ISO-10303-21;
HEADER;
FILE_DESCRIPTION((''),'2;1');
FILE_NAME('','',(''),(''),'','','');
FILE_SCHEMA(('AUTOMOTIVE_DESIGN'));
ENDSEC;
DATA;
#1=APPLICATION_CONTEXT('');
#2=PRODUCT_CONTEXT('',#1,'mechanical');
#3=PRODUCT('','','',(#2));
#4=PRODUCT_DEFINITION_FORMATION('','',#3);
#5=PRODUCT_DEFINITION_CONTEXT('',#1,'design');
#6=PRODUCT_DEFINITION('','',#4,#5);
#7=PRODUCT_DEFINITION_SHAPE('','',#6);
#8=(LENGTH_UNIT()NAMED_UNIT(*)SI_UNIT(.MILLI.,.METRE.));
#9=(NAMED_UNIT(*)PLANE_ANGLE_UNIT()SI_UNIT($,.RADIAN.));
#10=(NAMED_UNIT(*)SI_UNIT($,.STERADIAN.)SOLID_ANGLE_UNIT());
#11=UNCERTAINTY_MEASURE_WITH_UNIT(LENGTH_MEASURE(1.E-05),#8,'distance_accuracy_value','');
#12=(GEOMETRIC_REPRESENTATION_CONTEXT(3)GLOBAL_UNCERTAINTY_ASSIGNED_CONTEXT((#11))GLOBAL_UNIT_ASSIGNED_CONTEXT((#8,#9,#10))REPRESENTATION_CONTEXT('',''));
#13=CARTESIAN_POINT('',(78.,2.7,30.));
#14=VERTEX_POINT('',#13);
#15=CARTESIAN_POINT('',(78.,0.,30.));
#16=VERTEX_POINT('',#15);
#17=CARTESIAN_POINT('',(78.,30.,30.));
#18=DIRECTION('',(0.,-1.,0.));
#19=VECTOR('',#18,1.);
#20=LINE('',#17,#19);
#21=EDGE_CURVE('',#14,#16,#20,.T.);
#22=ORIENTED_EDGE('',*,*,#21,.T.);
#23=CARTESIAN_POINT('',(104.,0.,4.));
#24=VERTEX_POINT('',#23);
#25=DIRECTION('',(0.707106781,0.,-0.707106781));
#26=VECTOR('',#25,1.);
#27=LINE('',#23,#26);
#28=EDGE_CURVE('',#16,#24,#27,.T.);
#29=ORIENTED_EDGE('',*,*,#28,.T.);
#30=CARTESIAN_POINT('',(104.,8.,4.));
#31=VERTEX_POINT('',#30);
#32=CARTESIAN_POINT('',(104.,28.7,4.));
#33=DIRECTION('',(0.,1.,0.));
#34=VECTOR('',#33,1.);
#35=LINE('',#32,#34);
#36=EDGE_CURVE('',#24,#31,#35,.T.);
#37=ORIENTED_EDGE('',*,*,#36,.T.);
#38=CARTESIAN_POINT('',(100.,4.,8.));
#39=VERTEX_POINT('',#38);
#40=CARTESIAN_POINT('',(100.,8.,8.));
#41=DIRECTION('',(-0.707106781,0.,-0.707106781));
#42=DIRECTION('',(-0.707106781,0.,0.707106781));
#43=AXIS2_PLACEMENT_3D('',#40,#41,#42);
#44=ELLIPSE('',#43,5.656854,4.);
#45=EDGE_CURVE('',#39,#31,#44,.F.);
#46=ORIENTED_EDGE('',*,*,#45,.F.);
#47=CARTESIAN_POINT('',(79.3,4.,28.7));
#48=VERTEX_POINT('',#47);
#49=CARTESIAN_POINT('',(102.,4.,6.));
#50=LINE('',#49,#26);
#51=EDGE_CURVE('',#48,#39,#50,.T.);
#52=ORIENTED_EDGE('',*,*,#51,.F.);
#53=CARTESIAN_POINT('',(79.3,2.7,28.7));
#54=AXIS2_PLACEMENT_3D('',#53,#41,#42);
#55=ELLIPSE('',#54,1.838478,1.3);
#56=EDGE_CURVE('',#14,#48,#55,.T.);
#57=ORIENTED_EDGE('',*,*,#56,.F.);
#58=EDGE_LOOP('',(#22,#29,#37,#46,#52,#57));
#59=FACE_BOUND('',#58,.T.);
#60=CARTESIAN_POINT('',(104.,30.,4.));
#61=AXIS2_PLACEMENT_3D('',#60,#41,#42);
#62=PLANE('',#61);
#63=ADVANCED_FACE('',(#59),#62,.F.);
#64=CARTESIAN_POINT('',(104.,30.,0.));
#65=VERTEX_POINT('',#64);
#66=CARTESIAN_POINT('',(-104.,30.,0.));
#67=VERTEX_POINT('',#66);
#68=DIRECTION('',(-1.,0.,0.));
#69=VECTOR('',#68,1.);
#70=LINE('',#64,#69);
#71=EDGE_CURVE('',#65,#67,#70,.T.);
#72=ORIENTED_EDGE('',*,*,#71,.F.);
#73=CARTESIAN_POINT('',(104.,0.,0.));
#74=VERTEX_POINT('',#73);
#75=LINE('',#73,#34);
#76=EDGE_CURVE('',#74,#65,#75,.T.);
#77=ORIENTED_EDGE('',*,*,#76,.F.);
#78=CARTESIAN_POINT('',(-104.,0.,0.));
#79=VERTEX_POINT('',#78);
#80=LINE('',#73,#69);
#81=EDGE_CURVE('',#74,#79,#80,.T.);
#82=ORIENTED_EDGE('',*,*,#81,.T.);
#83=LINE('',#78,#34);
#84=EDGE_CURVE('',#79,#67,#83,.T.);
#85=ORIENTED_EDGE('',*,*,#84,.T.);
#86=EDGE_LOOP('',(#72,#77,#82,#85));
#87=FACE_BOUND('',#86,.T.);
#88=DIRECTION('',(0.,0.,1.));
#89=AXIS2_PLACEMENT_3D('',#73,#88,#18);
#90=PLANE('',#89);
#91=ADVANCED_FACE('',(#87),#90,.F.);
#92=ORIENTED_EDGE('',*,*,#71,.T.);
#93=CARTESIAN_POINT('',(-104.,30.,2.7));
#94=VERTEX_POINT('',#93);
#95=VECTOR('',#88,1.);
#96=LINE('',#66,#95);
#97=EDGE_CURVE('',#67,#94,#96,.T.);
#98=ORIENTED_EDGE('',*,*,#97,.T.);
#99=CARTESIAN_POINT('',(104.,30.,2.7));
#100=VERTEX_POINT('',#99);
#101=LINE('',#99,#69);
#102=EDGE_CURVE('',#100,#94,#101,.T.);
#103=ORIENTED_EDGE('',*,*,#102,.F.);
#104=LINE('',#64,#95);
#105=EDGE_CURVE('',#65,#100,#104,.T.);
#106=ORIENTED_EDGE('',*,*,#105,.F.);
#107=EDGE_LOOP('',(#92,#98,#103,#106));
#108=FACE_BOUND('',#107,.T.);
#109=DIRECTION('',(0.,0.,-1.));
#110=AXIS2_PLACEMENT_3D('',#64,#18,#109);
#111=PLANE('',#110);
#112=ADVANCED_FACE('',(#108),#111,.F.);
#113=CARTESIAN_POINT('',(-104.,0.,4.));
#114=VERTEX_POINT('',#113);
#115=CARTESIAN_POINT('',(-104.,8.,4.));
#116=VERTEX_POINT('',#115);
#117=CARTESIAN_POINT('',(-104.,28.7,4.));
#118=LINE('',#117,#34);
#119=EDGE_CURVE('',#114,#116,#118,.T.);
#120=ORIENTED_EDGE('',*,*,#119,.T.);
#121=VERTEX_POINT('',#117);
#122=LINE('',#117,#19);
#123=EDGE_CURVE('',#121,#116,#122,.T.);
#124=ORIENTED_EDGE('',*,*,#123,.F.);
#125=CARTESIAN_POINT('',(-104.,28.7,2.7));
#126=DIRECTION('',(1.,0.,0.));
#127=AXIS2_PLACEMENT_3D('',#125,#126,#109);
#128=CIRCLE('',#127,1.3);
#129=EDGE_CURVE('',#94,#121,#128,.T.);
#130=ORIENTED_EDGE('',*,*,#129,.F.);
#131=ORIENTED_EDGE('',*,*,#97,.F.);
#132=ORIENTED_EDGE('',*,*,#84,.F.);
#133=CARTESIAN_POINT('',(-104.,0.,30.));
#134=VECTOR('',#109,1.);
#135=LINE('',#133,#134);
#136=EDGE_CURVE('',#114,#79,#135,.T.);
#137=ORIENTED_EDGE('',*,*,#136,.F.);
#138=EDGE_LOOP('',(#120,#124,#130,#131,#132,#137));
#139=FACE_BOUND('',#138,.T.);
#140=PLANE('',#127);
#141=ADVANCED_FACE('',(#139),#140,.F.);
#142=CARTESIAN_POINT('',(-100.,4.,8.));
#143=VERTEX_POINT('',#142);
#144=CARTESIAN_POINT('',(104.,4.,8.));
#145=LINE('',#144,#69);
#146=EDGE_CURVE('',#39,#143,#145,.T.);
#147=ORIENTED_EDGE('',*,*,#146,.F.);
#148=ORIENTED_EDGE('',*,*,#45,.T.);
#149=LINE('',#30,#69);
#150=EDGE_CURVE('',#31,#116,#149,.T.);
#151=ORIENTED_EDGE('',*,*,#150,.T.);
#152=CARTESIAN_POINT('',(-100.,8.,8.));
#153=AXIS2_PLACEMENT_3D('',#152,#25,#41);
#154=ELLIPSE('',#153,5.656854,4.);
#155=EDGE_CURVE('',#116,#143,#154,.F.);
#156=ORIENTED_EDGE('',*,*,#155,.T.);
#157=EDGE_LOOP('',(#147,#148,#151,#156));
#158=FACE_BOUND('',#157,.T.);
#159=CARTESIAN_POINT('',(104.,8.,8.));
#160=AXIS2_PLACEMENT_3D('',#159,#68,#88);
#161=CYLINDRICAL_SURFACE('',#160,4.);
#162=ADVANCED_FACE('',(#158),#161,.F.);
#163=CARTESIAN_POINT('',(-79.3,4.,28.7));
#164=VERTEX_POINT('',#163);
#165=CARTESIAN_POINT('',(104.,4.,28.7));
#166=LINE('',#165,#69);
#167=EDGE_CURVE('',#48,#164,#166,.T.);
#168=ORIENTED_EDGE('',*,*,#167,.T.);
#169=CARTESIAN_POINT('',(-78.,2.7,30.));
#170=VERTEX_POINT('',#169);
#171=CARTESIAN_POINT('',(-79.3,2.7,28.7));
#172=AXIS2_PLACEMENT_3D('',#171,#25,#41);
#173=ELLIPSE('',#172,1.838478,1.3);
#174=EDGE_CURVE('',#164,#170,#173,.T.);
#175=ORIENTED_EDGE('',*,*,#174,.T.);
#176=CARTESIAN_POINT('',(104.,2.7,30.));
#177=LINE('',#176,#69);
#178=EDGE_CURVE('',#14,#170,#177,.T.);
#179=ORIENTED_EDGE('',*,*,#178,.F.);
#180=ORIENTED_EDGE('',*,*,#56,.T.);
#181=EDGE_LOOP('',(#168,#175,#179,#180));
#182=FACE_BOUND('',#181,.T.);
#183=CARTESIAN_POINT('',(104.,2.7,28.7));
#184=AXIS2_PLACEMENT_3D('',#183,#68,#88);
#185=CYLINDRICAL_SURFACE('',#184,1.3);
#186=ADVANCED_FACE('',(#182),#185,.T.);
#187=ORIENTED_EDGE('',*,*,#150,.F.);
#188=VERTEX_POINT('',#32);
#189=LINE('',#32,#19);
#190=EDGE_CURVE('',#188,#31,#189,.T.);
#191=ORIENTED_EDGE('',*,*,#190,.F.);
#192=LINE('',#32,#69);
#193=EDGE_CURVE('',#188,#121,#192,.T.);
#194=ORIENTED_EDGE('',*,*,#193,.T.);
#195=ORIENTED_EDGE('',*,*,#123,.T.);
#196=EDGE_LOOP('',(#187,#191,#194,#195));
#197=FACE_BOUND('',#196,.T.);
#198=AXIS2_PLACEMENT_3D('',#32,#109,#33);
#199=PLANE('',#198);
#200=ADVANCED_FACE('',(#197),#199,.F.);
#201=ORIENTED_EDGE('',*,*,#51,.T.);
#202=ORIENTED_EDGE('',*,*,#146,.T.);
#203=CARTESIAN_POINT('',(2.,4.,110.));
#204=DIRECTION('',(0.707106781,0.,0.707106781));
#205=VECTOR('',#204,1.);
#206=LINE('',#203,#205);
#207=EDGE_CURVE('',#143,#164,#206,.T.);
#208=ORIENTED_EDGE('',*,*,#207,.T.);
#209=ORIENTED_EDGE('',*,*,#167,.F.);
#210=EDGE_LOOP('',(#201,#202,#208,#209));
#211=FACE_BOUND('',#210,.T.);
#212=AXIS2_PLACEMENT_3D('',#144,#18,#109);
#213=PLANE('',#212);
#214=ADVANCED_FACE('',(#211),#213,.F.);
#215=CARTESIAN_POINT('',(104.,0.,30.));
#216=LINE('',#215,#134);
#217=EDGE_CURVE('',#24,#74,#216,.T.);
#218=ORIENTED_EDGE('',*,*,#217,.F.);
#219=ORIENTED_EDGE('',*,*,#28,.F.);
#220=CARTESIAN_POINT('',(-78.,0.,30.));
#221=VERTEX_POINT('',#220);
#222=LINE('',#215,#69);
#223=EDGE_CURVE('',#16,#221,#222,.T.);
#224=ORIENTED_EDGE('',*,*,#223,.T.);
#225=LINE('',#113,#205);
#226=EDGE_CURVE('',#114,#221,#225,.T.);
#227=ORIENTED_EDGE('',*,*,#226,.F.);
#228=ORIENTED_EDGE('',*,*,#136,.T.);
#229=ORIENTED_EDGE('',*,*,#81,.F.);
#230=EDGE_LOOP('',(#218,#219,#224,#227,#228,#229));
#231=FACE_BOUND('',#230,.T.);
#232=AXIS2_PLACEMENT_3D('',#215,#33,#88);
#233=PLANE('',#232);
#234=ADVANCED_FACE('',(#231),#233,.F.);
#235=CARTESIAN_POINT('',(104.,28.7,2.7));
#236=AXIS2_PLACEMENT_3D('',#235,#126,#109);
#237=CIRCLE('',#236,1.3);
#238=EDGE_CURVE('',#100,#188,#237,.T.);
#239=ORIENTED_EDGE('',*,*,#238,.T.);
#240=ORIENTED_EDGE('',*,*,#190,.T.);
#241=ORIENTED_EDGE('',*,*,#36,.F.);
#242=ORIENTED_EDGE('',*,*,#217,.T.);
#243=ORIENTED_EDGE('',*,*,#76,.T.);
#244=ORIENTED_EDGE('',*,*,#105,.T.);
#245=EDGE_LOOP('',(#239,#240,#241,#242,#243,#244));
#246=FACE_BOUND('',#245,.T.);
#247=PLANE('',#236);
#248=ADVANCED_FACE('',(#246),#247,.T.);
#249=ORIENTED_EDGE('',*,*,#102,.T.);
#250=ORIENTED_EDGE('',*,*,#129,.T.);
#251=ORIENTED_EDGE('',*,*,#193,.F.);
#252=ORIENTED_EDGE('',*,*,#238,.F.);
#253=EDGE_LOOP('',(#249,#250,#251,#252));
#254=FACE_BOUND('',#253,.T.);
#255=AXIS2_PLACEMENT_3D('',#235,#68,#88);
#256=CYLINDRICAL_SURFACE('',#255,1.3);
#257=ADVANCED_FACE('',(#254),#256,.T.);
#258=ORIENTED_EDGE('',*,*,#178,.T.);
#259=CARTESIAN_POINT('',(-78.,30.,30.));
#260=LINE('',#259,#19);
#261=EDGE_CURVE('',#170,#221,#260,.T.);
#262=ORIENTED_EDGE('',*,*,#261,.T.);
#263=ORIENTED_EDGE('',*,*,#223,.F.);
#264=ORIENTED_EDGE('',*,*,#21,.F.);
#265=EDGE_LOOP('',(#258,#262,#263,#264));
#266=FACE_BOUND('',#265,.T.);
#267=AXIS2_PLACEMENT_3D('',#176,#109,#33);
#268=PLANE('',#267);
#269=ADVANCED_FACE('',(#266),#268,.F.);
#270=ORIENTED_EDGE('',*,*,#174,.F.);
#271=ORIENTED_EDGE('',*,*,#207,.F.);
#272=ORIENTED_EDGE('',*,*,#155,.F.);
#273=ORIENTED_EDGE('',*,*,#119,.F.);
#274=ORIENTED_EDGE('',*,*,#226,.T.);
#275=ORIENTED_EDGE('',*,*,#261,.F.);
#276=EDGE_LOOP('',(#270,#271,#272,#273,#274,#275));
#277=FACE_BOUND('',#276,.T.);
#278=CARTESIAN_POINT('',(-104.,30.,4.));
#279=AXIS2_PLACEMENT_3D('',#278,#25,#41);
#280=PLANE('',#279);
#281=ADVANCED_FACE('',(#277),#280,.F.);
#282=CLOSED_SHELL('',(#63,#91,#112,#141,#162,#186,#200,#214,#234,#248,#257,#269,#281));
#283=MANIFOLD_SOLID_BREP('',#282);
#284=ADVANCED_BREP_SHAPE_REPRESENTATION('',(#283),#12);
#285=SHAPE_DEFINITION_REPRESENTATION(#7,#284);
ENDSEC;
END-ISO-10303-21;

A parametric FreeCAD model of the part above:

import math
import FreeCAD as App
import Part
import Sketcher


def add_polygon(sketch, points):
    """Adds a closed chain of lines whose ends are joined by coincident constraints."""
    first, n = sketch.GeometryCount, len(points)
    for a, b in zip(points, points[1:] + points[:1]):
        sketch.addGeometry(Part.LineSegment(App.Vector(*a, 0), App.Vector(*b, 0)), False)
    for i in range(n):
        sketch.addConstraint(Sketcher.Constraint("Coincident", first + i, 2, first + (i + 1) % n, 1))

doc = App.newDocument("Part")
body = doc.addObject("PartDesign::Body", "Body")

sketch1 = body.newObject("Sketcher::SketchObject", "Sketch")
sketch1.AttachmentSupport = (doc.getObject("YZ_Plane"), [""])
sketch1.MapMode = "FlatFace"
sketch1.addGeometry([
    Part.LineSegment(App.Vector(0, 0, 0), App.Vector(30, 0, 0)),
    Part.LineSegment(App.Vector(30, 0, 0), App.Vector(30, 2.7, 0)),
    Part.ArcOfCircle(Part.Circle(App.Vector(28.7, 2.7, 0), App.Vector(0, 0, 1), 1.3), math.radians(0), math.radians(90)),
    Part.LineSegment(App.Vector(28.7, 4, 0), App.Vector(8, 4, 0)),
    Part.ArcOfCircle(Part.Circle(App.Vector(8, 8, 0), App.Vector(0, 0, 1), 4), math.radians(180), math.radians(270)),
    Part.LineSegment(App.Vector(4, 8, 0), App.Vector(4, 28.7, 0)),
    Part.ArcOfCircle(Part.Circle(App.Vector(2.7, 28.7, 0), App.Vector(0, 0, 1), 1.3), math.radians(0), math.radians(90)),
    Part.LineSegment(App.Vector(2.7, 30, 0), App.Vector(0, 30, 0)),
    Part.LineSegment(App.Vector(0, 30, 0), App.Vector(0, 0, 0)),
], False)
sketch1.addConstraint([
    Sketcher.Constraint("Coincident", 0, 2, 1, 1),
    Sketcher.Constraint("Tangent", 1, 2, 2, 1),
    Sketcher.Constraint("Tangent", 2, 2, 3, 1),
    Sketcher.Constraint("Tangent", 3, 2, 4, 2),
    Sketcher.Constraint("Tangent", 4, 1, 5, 1),
    Sketcher.Constraint("Tangent", 5, 2, 6, 1),
    Sketcher.Constraint("Tangent", 6, 2, 7, 1),
    Sketcher.Constraint("Coincident", 7, 2, 8, 1),
    Sketcher.Constraint("Coincident", 8, 2, 0, 1),
    Sketcher.Constraint("Horizontal", 0),
    Sketcher.Constraint("Vertical", 1),
    Sketcher.Constraint("Horizontal", 3),
    Sketcher.Constraint("Vertical", 5),
    Sketcher.Constraint("Horizontal", 7),
    Sketcher.Constraint("Vertical", 8),
    Sketcher.Constraint("Coincident", 8, 2, -1, 1),
    Sketcher.Constraint("Equal", 2, 6),
    Sketcher.Constraint("Equal", 7, 1),
    Sketcher.Constraint("Equal", 3, 5),
    Sketcher.Constraint("Radius", 4, 4.0),
    Sketcher.Constraint("Radius", 2, 1.3),
    Sketcher.Constraint("DistanceX", 0, 1, 0, 2, 30.0),
    Sketcher.Constraint("DistanceX", 3, 2, 3, 1, 20.7),
])
pad1 = body.newObject("PartDesign::Pad", "Pad")
pad1.Profile = sketch1
pad1.Length = 208
pad1.Midplane = True

sketch2 = body.newObject("Sketcher::SketchObject", "Sketch001")
sketch2.AttachmentSupport = (doc.getObject("XZ_Plane"), [""])
sketch2.MapMode = "FlatFace"
add_polygon(sketch2, [(-104, 4), (-78, 30), (-104, 30)])
add_polygon(sketch2, [(78, 30), (104, 4), (104, 30)])
sketch2.addConstraint([
    Sketcher.Constraint("Horizontal", 1),
    Sketcher.Constraint("Vertical", 2),
    Sketcher.Constraint("Vertical", 4),
    Sketcher.Constraint("Horizontal", 5),
    Sketcher.Constraint("Symmetric", 2, 2, 3, 2, -2),
    Sketcher.Constraint("Symmetric", 0, 2, 5, 2, -2),
    Sketcher.Constraint("Perpendicular", 0, 3),
    Sketcher.Constraint("DistanceX", 1, 2, 1, 1, 26.0),
    Sketcher.Constraint("DistanceX", 0, 2, -1, 1, 78.0),
    Sketcher.Constraint("DistanceY", -1, 1, 0, 2, 30.0),
])
pocket1 = body.newObject("PartDesign::Pocket", "Pocket")
pocket1.Profile = sketch2
pocket1.Type = "ThroughAll"

doc.recompute()
